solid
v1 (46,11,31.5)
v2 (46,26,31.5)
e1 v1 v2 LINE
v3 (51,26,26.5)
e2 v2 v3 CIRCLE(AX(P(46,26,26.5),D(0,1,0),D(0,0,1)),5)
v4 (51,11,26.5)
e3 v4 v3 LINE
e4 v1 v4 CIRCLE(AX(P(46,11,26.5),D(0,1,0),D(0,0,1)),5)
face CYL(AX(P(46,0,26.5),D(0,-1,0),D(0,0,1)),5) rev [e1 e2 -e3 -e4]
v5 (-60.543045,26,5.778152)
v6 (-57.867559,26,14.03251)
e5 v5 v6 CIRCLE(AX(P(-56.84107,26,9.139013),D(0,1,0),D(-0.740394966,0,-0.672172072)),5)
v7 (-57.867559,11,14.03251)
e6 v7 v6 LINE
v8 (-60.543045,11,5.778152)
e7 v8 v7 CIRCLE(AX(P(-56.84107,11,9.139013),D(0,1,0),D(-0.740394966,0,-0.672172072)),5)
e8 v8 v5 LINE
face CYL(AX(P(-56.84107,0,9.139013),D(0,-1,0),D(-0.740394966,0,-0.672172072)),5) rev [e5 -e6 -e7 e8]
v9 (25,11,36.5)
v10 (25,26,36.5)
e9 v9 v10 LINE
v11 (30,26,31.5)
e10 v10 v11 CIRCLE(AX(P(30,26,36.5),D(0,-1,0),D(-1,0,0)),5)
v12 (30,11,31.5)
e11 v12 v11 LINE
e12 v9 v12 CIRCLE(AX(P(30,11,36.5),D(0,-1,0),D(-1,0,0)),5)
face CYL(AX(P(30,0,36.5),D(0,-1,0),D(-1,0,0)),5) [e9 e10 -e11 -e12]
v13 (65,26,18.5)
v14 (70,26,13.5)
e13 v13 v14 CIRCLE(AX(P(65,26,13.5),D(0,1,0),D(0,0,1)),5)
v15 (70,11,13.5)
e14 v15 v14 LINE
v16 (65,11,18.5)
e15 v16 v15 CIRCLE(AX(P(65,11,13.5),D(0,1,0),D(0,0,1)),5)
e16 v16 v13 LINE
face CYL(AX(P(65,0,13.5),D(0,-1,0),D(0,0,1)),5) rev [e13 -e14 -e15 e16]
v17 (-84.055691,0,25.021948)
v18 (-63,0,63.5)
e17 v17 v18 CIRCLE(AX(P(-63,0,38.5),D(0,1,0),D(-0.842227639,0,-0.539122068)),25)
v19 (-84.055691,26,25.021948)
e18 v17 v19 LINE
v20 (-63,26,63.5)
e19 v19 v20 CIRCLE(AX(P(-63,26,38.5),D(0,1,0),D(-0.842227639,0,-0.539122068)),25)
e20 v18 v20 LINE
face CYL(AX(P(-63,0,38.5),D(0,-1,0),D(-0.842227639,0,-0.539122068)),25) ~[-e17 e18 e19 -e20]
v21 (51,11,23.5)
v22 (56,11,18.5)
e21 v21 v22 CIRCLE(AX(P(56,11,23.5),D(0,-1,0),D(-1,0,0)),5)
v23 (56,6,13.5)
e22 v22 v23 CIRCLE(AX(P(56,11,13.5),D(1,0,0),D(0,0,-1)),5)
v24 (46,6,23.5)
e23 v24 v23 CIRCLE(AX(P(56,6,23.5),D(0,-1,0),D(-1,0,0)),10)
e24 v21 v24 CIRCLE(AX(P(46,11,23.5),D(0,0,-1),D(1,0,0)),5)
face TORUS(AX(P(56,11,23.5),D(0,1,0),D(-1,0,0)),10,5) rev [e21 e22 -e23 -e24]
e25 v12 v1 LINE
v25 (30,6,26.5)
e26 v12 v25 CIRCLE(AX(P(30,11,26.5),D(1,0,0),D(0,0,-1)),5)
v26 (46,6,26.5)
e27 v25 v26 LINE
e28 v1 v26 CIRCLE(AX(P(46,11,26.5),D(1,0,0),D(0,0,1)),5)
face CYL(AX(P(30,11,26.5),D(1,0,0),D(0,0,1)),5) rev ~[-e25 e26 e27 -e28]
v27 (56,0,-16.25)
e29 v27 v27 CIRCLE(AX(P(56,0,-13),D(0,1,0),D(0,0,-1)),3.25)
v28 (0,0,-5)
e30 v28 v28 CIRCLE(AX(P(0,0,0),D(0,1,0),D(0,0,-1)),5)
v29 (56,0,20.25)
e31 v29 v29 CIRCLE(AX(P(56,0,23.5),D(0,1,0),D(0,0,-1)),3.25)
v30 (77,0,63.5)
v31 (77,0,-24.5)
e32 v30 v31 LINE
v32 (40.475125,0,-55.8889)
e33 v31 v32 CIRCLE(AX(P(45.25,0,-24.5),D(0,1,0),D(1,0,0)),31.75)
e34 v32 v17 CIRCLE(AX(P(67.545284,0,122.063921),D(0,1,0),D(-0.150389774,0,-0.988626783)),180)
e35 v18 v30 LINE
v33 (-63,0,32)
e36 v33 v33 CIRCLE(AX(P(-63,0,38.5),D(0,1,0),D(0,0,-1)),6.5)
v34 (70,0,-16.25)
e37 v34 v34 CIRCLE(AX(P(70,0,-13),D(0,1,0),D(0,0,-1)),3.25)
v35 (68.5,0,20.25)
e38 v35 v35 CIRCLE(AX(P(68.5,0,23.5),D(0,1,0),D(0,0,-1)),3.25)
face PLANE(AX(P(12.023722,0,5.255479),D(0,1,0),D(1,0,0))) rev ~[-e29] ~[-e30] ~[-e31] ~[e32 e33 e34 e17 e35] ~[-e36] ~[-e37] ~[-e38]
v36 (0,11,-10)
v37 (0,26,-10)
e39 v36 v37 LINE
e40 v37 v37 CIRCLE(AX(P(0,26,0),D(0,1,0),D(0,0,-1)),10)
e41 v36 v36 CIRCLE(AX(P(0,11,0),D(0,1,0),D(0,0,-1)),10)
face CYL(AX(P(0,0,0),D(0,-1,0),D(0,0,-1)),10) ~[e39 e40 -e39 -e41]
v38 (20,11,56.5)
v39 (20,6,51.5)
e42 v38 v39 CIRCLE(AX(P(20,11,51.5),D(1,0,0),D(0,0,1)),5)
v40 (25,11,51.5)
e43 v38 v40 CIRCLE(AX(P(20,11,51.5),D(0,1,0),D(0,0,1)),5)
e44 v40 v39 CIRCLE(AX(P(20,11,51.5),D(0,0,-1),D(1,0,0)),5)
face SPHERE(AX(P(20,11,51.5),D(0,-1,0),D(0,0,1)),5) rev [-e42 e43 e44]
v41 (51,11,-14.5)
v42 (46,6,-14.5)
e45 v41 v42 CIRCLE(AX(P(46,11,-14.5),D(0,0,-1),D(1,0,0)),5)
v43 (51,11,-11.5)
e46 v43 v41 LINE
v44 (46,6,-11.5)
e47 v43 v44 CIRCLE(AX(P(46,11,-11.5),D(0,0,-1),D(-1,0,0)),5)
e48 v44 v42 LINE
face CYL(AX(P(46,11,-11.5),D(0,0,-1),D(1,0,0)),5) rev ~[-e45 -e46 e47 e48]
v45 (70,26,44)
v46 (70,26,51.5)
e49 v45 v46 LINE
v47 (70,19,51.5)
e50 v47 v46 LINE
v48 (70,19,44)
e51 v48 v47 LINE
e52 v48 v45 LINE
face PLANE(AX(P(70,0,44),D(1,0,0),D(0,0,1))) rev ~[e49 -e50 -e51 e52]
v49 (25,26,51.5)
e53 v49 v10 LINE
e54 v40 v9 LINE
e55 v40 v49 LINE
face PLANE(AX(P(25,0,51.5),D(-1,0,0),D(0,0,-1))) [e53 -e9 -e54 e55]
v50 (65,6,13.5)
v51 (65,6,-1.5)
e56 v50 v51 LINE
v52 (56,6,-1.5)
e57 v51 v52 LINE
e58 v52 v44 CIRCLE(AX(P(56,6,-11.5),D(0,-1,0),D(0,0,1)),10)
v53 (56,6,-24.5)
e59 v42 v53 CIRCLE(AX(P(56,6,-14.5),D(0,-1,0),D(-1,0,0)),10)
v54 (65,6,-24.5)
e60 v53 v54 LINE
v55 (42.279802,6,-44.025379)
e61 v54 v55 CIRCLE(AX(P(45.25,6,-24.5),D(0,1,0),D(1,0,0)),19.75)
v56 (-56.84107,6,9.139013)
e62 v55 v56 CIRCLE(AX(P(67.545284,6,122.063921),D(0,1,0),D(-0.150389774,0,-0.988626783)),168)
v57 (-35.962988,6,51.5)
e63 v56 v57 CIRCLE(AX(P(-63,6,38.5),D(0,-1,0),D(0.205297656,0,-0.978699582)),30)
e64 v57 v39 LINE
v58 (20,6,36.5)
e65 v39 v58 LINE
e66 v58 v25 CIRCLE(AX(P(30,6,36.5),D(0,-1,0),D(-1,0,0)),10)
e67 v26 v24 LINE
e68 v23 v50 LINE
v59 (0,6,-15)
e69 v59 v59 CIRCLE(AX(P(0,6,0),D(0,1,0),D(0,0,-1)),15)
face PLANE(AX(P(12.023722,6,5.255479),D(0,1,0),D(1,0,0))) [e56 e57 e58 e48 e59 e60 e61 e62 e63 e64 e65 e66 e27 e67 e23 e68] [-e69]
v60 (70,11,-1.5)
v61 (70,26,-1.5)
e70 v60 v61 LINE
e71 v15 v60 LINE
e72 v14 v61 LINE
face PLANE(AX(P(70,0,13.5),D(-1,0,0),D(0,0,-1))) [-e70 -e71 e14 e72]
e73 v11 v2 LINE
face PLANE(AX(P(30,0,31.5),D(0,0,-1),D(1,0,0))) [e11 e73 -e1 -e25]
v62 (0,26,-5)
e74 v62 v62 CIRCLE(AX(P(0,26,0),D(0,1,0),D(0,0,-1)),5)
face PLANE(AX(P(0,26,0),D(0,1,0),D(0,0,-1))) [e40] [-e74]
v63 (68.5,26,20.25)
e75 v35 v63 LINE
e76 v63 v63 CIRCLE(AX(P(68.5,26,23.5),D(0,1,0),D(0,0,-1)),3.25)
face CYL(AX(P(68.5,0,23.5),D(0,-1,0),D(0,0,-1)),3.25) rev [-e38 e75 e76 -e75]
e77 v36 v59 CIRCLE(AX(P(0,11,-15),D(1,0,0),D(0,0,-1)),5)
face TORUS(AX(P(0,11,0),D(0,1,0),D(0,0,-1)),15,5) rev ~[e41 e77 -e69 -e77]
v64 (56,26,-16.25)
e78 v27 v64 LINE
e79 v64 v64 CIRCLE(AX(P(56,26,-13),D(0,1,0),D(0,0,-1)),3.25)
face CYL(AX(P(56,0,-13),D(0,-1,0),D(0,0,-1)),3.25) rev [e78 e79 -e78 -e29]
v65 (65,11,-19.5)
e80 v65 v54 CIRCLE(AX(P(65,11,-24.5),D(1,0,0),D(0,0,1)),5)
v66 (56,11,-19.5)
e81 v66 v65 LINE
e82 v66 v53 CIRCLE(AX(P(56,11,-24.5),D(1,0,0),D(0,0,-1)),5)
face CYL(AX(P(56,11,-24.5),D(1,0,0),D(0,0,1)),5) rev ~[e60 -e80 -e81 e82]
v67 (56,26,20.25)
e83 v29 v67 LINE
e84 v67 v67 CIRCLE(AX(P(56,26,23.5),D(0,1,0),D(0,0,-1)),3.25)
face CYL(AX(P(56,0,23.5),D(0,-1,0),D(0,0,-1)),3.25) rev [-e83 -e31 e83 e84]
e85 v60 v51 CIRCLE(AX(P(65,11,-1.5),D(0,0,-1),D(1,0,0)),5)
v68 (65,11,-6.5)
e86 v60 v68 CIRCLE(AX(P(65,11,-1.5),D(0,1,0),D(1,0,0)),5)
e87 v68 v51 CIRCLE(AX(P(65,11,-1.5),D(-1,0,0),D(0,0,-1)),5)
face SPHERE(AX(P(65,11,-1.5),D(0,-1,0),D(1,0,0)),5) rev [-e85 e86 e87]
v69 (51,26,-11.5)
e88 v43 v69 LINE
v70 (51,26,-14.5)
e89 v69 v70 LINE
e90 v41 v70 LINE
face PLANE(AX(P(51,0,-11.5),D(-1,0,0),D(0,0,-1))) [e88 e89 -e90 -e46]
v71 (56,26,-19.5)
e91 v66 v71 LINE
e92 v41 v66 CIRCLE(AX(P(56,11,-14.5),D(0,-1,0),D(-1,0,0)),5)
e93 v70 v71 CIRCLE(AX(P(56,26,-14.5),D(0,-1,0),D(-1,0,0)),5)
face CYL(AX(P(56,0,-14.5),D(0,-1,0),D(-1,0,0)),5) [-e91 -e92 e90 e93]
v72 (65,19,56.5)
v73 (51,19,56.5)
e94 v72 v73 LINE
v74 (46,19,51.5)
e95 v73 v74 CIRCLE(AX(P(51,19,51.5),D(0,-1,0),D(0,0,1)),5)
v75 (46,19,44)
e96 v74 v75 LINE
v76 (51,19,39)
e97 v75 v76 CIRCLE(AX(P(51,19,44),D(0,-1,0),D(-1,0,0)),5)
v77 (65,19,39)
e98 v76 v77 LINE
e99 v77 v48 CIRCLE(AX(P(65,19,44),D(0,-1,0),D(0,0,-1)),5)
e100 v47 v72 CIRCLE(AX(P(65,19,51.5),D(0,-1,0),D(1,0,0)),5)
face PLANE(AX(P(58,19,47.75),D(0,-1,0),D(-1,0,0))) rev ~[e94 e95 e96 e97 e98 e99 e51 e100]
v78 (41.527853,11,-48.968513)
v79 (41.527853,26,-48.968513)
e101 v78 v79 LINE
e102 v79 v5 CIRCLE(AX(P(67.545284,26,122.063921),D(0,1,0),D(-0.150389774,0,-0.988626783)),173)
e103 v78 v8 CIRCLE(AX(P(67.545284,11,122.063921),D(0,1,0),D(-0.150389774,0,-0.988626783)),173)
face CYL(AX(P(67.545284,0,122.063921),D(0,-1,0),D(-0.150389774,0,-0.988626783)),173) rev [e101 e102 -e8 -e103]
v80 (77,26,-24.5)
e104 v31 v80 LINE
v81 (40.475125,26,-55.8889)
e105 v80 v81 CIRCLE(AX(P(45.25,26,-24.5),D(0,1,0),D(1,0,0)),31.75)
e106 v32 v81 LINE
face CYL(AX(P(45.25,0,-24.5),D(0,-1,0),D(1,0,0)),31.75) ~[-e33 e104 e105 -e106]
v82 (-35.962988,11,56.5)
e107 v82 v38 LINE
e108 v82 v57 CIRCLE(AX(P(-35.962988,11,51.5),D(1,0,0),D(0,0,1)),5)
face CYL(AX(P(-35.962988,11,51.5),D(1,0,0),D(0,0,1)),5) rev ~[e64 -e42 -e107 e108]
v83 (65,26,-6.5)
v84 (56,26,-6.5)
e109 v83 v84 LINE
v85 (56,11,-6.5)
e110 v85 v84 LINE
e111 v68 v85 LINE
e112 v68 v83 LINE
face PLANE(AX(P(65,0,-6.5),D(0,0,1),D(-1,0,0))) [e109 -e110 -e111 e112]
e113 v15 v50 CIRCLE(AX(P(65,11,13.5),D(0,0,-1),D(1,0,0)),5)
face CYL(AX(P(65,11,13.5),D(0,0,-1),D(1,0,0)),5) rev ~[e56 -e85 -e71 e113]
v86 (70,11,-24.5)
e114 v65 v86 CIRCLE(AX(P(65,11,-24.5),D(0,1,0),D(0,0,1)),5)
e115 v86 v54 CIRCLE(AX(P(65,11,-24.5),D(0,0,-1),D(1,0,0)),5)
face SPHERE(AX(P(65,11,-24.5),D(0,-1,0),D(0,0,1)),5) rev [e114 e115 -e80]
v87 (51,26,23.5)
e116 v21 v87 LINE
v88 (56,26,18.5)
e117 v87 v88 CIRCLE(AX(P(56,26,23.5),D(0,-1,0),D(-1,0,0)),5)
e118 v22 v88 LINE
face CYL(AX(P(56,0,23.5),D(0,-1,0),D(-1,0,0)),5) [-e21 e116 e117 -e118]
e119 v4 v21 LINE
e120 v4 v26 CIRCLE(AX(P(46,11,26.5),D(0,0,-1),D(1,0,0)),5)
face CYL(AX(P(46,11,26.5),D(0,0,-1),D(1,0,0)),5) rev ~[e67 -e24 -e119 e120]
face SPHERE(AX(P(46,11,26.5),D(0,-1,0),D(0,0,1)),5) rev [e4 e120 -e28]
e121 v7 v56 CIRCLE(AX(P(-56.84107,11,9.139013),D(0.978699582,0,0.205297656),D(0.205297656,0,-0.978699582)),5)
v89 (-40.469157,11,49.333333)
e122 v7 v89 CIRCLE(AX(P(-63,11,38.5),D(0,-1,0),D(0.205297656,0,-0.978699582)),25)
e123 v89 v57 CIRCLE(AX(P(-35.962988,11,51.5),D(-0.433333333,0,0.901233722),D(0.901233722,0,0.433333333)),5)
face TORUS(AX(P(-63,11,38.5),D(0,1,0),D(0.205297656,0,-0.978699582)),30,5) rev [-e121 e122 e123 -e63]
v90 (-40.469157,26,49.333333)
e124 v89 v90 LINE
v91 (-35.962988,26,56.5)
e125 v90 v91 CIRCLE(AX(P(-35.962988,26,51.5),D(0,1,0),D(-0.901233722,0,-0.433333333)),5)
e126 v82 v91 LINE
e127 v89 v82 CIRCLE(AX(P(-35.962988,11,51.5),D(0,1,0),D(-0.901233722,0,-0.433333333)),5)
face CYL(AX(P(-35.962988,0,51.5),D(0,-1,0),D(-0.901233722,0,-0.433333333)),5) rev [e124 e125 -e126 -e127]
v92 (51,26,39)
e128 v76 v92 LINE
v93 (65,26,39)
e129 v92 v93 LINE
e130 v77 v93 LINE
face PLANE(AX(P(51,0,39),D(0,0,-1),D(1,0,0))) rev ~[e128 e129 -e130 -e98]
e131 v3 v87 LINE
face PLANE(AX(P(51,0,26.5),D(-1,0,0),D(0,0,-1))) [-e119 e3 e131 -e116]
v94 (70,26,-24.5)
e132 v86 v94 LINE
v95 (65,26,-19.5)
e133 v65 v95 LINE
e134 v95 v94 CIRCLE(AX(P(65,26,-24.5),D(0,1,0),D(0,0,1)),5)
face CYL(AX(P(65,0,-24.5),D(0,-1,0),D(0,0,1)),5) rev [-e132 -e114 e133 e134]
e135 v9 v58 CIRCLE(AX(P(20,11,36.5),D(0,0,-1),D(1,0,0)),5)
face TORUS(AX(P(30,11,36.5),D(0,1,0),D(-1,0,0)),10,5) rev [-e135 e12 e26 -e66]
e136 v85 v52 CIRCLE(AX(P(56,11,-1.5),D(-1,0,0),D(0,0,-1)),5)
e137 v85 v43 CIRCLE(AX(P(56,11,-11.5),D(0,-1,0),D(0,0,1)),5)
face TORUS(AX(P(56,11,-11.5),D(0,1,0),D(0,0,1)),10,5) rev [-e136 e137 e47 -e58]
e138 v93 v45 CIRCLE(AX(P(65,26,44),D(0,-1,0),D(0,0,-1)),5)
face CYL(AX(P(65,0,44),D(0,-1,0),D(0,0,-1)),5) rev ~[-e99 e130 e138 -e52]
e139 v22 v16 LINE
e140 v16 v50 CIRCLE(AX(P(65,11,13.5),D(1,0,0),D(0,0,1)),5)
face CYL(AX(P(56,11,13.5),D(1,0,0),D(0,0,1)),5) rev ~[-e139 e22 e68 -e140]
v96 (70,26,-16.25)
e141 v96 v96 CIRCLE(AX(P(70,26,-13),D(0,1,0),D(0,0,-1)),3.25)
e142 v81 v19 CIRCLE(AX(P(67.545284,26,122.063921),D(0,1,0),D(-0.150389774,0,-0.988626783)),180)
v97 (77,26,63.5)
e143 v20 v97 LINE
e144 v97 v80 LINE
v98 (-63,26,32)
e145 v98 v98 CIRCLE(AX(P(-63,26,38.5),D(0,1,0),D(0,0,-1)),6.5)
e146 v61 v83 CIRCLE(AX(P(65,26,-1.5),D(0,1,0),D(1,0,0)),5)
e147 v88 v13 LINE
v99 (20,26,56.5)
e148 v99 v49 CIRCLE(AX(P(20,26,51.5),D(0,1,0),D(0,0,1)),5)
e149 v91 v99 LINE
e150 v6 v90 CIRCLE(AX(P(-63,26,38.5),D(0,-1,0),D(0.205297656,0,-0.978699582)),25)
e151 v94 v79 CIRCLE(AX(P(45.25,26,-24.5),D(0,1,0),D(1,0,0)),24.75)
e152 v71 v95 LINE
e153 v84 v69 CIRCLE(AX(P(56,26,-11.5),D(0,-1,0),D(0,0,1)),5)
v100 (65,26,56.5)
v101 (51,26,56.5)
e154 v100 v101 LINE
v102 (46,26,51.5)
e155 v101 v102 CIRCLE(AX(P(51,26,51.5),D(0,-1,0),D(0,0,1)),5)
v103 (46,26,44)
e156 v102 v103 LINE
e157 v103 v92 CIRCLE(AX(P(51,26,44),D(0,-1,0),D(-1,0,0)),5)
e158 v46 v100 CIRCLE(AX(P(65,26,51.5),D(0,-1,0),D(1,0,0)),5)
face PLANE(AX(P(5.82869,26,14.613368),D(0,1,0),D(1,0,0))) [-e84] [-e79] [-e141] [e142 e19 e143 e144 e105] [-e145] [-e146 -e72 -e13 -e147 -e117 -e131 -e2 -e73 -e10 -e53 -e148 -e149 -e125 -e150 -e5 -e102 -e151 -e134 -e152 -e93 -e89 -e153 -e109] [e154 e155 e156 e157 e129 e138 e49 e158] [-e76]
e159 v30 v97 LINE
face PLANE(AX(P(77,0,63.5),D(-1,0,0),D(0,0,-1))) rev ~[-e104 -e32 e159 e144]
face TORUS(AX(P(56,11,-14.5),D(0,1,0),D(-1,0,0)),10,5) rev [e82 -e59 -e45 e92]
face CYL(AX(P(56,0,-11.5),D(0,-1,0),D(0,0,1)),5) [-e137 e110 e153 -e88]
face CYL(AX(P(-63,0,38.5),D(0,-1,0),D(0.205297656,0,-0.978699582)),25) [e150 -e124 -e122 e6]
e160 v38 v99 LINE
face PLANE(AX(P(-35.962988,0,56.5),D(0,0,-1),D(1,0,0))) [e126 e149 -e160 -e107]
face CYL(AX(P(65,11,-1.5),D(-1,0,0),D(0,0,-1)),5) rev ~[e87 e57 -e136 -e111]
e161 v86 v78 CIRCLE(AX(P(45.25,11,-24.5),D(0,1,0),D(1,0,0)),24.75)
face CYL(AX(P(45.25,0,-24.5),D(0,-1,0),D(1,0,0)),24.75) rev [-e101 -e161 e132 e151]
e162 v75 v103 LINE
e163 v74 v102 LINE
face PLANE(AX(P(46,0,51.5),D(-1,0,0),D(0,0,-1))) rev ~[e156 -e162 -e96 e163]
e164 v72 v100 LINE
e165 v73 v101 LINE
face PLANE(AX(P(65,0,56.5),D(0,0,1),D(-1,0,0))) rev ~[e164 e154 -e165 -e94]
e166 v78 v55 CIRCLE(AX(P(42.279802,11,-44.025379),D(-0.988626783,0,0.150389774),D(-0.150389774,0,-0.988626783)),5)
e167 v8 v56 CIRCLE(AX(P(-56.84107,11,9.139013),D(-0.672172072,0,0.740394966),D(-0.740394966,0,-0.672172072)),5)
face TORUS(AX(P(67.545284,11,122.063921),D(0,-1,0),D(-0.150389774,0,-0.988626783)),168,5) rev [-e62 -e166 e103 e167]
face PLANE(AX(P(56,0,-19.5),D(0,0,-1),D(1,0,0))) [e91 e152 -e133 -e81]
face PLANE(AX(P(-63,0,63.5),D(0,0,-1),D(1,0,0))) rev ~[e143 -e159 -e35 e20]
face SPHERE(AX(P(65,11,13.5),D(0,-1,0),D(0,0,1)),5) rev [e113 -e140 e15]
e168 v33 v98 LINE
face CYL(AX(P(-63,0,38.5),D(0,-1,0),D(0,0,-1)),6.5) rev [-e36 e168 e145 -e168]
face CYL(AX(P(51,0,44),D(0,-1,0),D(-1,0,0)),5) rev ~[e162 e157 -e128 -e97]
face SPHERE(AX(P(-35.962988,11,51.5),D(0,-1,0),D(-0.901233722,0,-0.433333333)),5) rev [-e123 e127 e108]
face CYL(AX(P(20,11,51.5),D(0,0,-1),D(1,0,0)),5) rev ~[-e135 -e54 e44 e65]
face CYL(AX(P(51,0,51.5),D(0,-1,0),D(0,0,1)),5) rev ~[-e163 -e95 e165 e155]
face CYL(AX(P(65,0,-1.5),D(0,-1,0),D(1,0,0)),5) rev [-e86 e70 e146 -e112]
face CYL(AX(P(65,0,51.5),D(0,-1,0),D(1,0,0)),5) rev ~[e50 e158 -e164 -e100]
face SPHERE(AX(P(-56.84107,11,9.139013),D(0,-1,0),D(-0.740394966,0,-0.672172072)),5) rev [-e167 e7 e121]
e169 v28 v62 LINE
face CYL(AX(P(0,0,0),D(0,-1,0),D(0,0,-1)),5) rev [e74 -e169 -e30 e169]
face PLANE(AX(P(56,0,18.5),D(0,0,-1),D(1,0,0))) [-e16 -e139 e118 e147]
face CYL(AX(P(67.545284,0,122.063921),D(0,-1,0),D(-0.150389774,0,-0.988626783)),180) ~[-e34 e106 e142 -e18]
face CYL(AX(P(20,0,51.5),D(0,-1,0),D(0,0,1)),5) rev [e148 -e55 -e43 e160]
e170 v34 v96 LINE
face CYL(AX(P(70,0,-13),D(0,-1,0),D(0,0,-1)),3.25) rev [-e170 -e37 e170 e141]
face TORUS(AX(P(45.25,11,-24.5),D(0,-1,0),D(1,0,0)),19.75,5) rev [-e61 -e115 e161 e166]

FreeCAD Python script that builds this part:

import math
import FreeCAD as App
import Part
import Sketcher

V = App.Vector


def edges_at(feature, points):
    """Names of the edges that pass closest to the given points."""
    edges = feature.Shape.Edges
    near = lambda p: min(range(len(edges)), key=lambda i: edges[i].distToShape(Part.Vertex(*p))[0])
    return sorted({f"Edge{near(p) + 1}" for p in points})

doc = App.newDocument("Part")
body = doc.addObject("PartDesign::Body", "Body")

# Sketch on XZ plane
sketch1 = body.newObject("Sketcher::SketchObject", "Sketch")
sketch1.AttachmentSupport = (doc.getObject("XZ_Plane"), [""])
sketch1.MapMode = "FlatFace"
sketch1.addGeometry(Part.ArcOfCircle(Part.Circle(V(45.3, -24.5, 0), V(0, 0, 1), 31.7), math.radians(-99), math.radians(0)), False)
sketch1.addGeometry(Part.ArcOfCircle(Part.Circle(V(67.5, 122.1, 0), V(0, 0, 1), 180), math.radians(-147), math.radians(-99)), False)
sketch1.addGeometry(Part.ArcOfCircle(Part.Circle(V(-63, 38.5, 0), V(0, 0, 1), 25), math.radians(90), math.radians(213)), False)
sketch1.addGeometry(Part.LineSegment(V(-63, 63.5, 0), V(77, 63.5, 0)), False)
sketch1.addGeometry(Part.LineSegment(V(77, 63.5, 0), V(77, -24.5, 0)), False)
sketch1.addGeometry(Part.Circle(V(-63, 38.5, 0), V(0, 0, 1), 6.5), False)
sketch1.addGeometry(Part.ArcOfCircle(Part.Circle(V(51, 51.5, 0), V(0, 0, 1), 5), math.radians(90), math.radians(180)), False)
sketch1.addGeometry(Part.LineSegment(V(46, 51.5, 0), V(46, 44, 0)), False)
sketch1.addGeometry(Part.ArcOfCircle(Part.Circle(V(51, 44, 0), V(0, 0, 1), 5), math.radians(180), math.radians(270)), False)
sketch1.addGeometry(Part.LineSegment(V(51, 39, 0), V(65, 39, 0)), False)
sketch1.addGeometry(Part.ArcOfCircle(Part.Circle(V(65, 44, 0), V(0, 0, 1), 5), math.radians(-90), math.radians(0)), False)
sketch1.addGeometry(Part.LineSegment(V(70, 44, 0), V(70, 51.5, 0)), False)
sketch1.addGeometry(Part.ArcOfCircle(Part.Circle(V(65, 51.5, 0), V(0, 0, 1), 5), math.radians(0), math.radians(90)), False)
sketch1.addGeometry(Part.LineSegment(V(65, 56.5, 0), V(51, 56.5, 0)), False)
sketch1.addGeometry(Part.ArcOfCircle(Part.Circle(V(-56.8, 9.1, 0), V(0, 0, 1), 5), math.radians(102), math.radians(222)), False)
sketch1.addGeometry(Part.ArcOfCircle(Part.Circle(V(67.5, 122.1, 0), V(0, 0, 1), 173), math.radians(-138), math.radians(-99)), False)
sketch1.addGeometry(Part.ArcOfCircle(Part.Circle(V(45.2, -24.5, 0), V(0, 0, 1), 24.8), math.radians(-99), math.radians(0)), False)
sketch1.addGeometry(Part.ArcOfCircle(Part.Circle(V(65, -24.5, 0), V(0, 0, 1), 5), math.radians(0), math.radians(90)), False)
sketch1.addGeometry(Part.LineSegment(V(65, -19.5, 0), V(56, -19.5, 0)), False)
sketch1.addGeometry(Part.ArcOfCircle(Part.Circle(V(56, -14.5, 0), V(0, 0, 1), 5), math.radians(180), math.radians(270)), False)
sketch1.addGeometry(Part.LineSegment(V(51, -14.5, 0), V(51, -11.5, 0)), False)
sketch1.addGeometry(Part.ArcOfCircle(Part.Circle(V(56, -11.5, 0), V(0, 0, 1), 5), math.radians(90), math.radians(180)), False)
sketch1.addGeometry(Part.LineSegment(V(56, -6.5, 0), V(65, -6.5, 0)), False)
sketch1.addGeometry(Part.ArcOfCircle(Part.Circle(V(65, -1.5, 0), V(0, 0, 1), 5), math.radians(-90), math.radians(0)), False)
sketch1.addGeometry(Part.LineSegment(V(70, -1.5, 0), V(70, 13.5, 0)), False)
sketch1.addGeometry(Part.ArcOfCircle(Part.Circle(V(65, 13.5, 0), V(0, 0, 1), 5), math.radians(0), math.radians(90)), False)
sketch1.addGeometry(Part.LineSegment(V(65, 18.5, 0), V(56, 18.5, 0)), False)
sketch1.addGeometry(Part.ArcOfCircle(Part.Circle(V(56, 23.5, 0), V(0, 0, 1), 5), math.radians(180), math.radians(270)), False)
sketch1.addGeometry(Part.LineSegment(V(51, 23.5, 0), V(51, 26.5, 0)), False)
sketch1.addGeometry(Part.ArcOfCircle(Part.Circle(V(46, 26.5, 0), V(0, 0, 1), 5), math.radians(0), math.radians(90)), False)
sketch1.addGeometry(Part.LineSegment(V(46, 31.5, 0), V(30, 31.5, 0)), False)
sketch1.addGeometry(Part.ArcOfCircle(Part.Circle(V(30, 36.5, 0), V(0, 0, 1), 5), math.radians(180), math.radians(270)), False)
sketch1.addGeometry(Part.LineSegment(V(25, 36.5, 0), V(25, 51.5, 0)), False)
sketch1.addGeometry(Part.ArcOfCircle(Part.Circle(V(20, 51.5, 0), V(0, 0, 1), 5), math.radians(0), math.radians(90)), False)
sketch1.addGeometry(Part.LineSegment(V(20, 56.5, 0), V(-36, 56.5, 0)), False)
sketch1.addGeometry(Part.ArcOfCircle(Part.Circle(V(-36, 51.5, 0), V(0, 0, 1), 5), math.radians(90), math.radians(206)), False)
sketch1.addGeometry(Part.ArcOfCircle(Part.Circle(V(-63, 38.5, 0), V(0, 0, 1), 25), math.radians(-78), math.radians(26)), False)
sketch1.addGeometry(Part.Circle(V(56, 23.5, 0), V(0, 0, 1), 3.2), False)
sketch1.addGeometry(Part.Circle(V(68.5, 23.5, 0), V(0, 0, 1), 3.2), False)
sketch1.addGeometry(Part.Circle(V(56, -13, 0), V(0, 0, 1), 3.2), False)
sketch1.addGeometry(Part.Circle(V(70, -13, 0), V(0, 0, 1), 3.2), False)
sketch1.addConstraint(Sketcher.Constraint("Tangent", 0, 1, 1, 2))
sketch1.addConstraint(Sketcher.Constraint("Tangent", 1, 1, 2, 2))
sketch1.addConstraint(Sketcher.Constraint("Tangent", 2, 1, 3, 1))
sketch1.addConstraint(Sketcher.Constraint("Coincident", 3, 2, 4, 1))
sketch1.addConstraint(Sketcher.Constraint("Tangent", 4, 2, 0, 2))
sketch1.addConstraint(Sketcher.Constraint("Tangent", 6, 2, 7, 1))
sketch1.addConstraint(Sketcher.Constraint("Tangent", 7, 2, 8, 1))
sketch1.addConstraint(Sketcher.Constraint("Tangent", 8, 2, 9, 1))
sketch1.addConstraint(Sketcher.Constraint("Tangent", 9, 2, 10, 1))
sketch1.addConstraint(Sketcher.Constraint("Tangent", 10, 2, 11, 1))
sketch1.addConstraint(Sketcher.Constraint("Tangent", 11, 2, 12, 1))
sketch1.addConstraint(Sketcher.Constraint("Tangent", 12, 2, 13, 1))
sketch1.addConstraint(Sketcher.Constraint("Tangent", 13, 2, 6, 1))
sketch1.addConstraint(Sketcher.Constraint("Tangent", 14, 2, 15, 1))
sketch1.addConstraint(Sketcher.Constraint("Tangent", 15, 2, 16, 1))
sketch1.addConstraint(Sketcher.Constraint("Tangent", 16, 2, 17, 1))
sketch1.addConstraint(Sketcher.Constraint("Tangent", 17, 2, 18, 1))
sketch1.addConstraint(Sketcher.Constraint("Tangent", 18, 2, 19, 2))
sketch1.addConstraint(Sketcher.Constraint("Tangent", 19, 1, 20, 1))
sketch1.addConstraint(Sketcher.Constraint("Tangent", 20, 2, 21, 2))
sketch1.addConstraint(Sketcher.Constraint("Tangent", 21, 1, 22, 1))
sketch1.addConstraint(Sketcher.Constraint("Tangent", 22, 2, 23, 1))
sketch1.addConstraint(Sketcher.Constraint("Tangent", 23, 2, 24, 1))
sketch1.addConstraint(Sketcher.Constraint("Tangent", 24, 2, 25, 1))
sketch1.addConstraint(Sketcher.Constraint("Tangent", 25, 2, 26, 1))
sketch1.addConstraint(Sketcher.Constraint("Tangent", 26, 2, 27, 2))
sketch1.addConstraint(Sketcher.Constraint("Tangent", 27, 1, 28, 1))
sketch1.addConstraint(Sketcher.Constraint("Tangent", 28, 2, 29, 1))
sketch1.addConstraint(Sketcher.Constraint("Tangent", 29, 2, 30, 1))
sketch1.addConstraint(Sketcher.Constraint("Tangent", 30, 2, 31, 2))
sketch1.addConstraint(Sketcher.Constraint("Tangent", 31, 1, 32, 1))
sketch1.addConstraint(Sketcher.Constraint("Tangent", 32, 2, 33, 1))
sketch1.addConstraint(Sketcher.Constraint("Tangent", 33, 2, 34, 1))
sketch1.addConstraint(Sketcher.Constraint("Tangent", 34, 2, 35, 1))
sketch1.addConstraint(Sketcher.Constraint("Tangent", 35, 2, 36, 2))
sketch1.addConstraint(Sketcher.Constraint("Tangent", 36, 1, 14, 1))
sketch1.addConstraint(Sketcher.Constraint("Horizontal", 3))
sketch1.addConstraint(Sketcher.Constraint("Vertical", 4))
sketch1.addConstraint(Sketcher.Constraint("Vertical", 7))
sketch1.addConstraint(Sketcher.Constraint("Horizontal", 9))
sketch1.addConstraint(Sketcher.Constraint("Vertical", 11))
sketch1.addConstraint(Sketcher.Constraint("Horizontal", 13))
sketch1.addConstraint(Sketcher.Constraint("Horizontal", 18))
sketch1.addConstraint(Sketcher.Constraint("Vertical", 20))
sketch1.addConstraint(Sketcher.Constraint("Horizontal", 22))
sketch1.addConstraint(Sketcher.Constraint("Vertical", 24))
sketch1.addConstraint(Sketcher.Constraint("Horizontal", 26))
sketch1.addConstraint(Sketcher.Constraint("Vertical", 28))
sketch1.addConstraint(Sketcher.Constraint("Horizontal", 30))
sketch1.addConstraint(Sketcher.Constraint("Vertical", 32))
sketch1.addConstraint(Sketcher.Constraint("Horizontal", 34))
sketch1.addConstraint(Sketcher.Constraint("Coincident", 5, 3, 2, 3))
sketch1.addConstraint(Sketcher.Constraint("Coincident", 15, 3, 1, 3))
sketch1.addConstraint(Sketcher.Constraint("Coincident", 16, 3, 0, 3))
sketch1.addConstraint(Sketcher.Constraint("Coincident", 36, 3, 2, 3))
sketch1.addConstraint(Sketcher.Constraint("Coincident", 37, 3, 27, 3))
sketch1.addConstraint(Sketcher.Constraint("Equal", 6, 8))
sketch1.addConstraint(Sketcher.Constraint("Equal", 8, 10))
sketch1.addConstraint(Sketcher.Constraint("Equal", 10, 12))
sketch1.addConstraint(Sketcher.Constraint("Equal", 12, 14))
sketch1.addConstraint(Sketcher.Constraint("Equal", 14, 17))
sketch1.addConstraint(Sketcher.Constraint("Equal", 17, 19))
sketch1.addConstraint(Sketcher.Constraint("Equal", 19, 21))
sketch1.addConstraint(Sketcher.Constraint("Equal", 21, 23))
sketch1.addConstraint(Sketcher.Constraint("Equal", 23, 25))
sketch1.addConstraint(Sketcher.Constraint("Equal", 25, 27))
sketch1.addConstraint(Sketcher.Constraint("Equal", 27, 29))
sketch1.addConstraint(Sketcher.Constraint("Equal", 29, 31))
sketch1.addConstraint(Sketcher.Constraint("Equal", 31, 33))
sketch1.addConstraint(Sketcher.Constraint("Equal", 33, 35))
sketch1.addConstraint(Sketcher.Constraint("Equal", 2, 36))
sketch1.addConstraint(Sketcher.Constraint("Equal", 37, 38))
sketch1.addConstraint(Sketcher.Constraint("Equal", 38, 39))
sketch1.addConstraint(Sketcher.Constraint("Equal", 39, 40))
sketch1.addConstraint(Sketcher.Constraint("Horizontal", 16, 3, 17, 3))
sketch1.addConstraint(Sketcher.Constraint("Horizontal", 12, 3, 33, 3))
sketch1.addConstraint(Sketcher.Constraint("Horizontal", 37, 3, 38, 3))
sketch1.addConstraint(Sketcher.Constraint("Horizontal", 39, 3, 40, 3))
sketch1.addConstraint(Sketcher.Constraint("Vertical", 12, 3, 17, 3))
sketch1.addConstraint(Sketcher.Constraint("Vertical", 17, 3, 23, 3))
sketch1.addConstraint(Sketcher.Constraint("Vertical", 21, 3, 27, 3))
sketch1.addConstraint(Sketcher.Constraint("Vertical", 37, 3, 39, 3))
sketch1.addConstraint(Sketcher.Constraint("Vertical", 29, 3, 6, 2))
sketch1.addConstraint(Sketcher.Constraint("Vertical", 40, 3, 10, 2))
sketch1.addConstraint(Sketcher.Constraint("Equal", 20, 28))
sketch1.addConstraint(Sketcher.Constraint("Equal", 24, 32))
sketch1.addConstraint(Sketcher.Constraint("Diameter", 5, 13.0))
sketch1.addConstraint(Sketcher.Constraint("Radius", 1, 180.0))
sketch1.addConstraint(Sketcher.Constraint("Radius", 2, 25.0))
sketch1.addConstraint(Sketcher.Constraint("Radius", 6, 5.0))
sketch1.addConstraint(Sketcher.Constraint("Radius", 15, 173.0))
sketch1.addConstraint(Sketcher.Constraint("Diameter", 37, 6.5))
sketch1.addConstraint(Sketcher.Constraint("DistanceX", 3, 1, 3, 2, 140.0))
sketch1.addConstraint(Sketcher.Constraint("DistanceX", 9, 1, 9, 2, 14.0))
sketch1.addConstraint(Sketcher.Constraint("DistanceX", 30, 2, 30, 1, 16.0))
sketch1.addConstraint(Sketcher.Constraint("DistanceY", 4, 2, 4, 1, 88.0))
sketch1.addConstraint(Sketcher.Constraint("DistanceY", 20, 1, 20, 2, 3.0))
sketch1.addConstraint(Sketcher.Constraint("DistanceY", 24, 1, 24, 2, 15.0))
sketch1.addConstraint(Sketcher.Constraint("Radius", 0, 31.75))
sketch1.addConstraint(Sketcher.Constraint("DistanceY", 7, 2, 7, 1, 7.5))
sketch1.addConstraint(Sketcher.Constraint("DistanceX", 2, 3, -1, 1, 63.0))
sketch1.addConstraint(Sketcher.Constraint("DistanceY", -1, 1, 8, 3, 44.0))
sketch1.addConstraint(Sketcher.Constraint("DistanceY", 39, 3, -1, 1, 13.0))
sketch1.addConstraint(Sketcher.Constraint("DistanceX", -1, 1, 38, 3, 68.5))
pad1 = body.newObject("PartDesign::Pad", "Pad")
pad1.Profile = sketch1
pad1.Length = 26
pad1.Reversed = True

# Sketch on XZ plane
sketch2 = body.newObject("Sketcher::SketchObject", "Sketch001")
sketch2.AttachmentSupport = (doc.getObject("XZ_Plane"), [""])
sketch2.MapMode = "FlatFace"
sketch2.addGeometry(Part.ArcOfCircle(Part.Circle(V(51, 44, 0), V(0, 0, 1), 5), math.radians(180), math.radians(270)), False)
sketch2.addGeometry(Part.LineSegment(V(46, 44, 0), V(46, 52, 0)), False)
sketch2.addGeometry(Part.ArcOfCircle(Part.Circle(V(51, 52, 0), V(0, 0, 1), 5), math.radians(90), math.radians(180)), False)
sketch2.addGeometry(Part.LineSegment(V(51, 56, 0), V(65, 56, 0)), False)
sketch2.addGeometry(Part.ArcOfCircle(Part.Circle(V(65, 52, 0), V(0, 0, 1), 5), math.radians(0), math.radians(90)), False)
sketch2.addGeometry(Part.LineSegment(V(70, 52, 0), V(70, 44, 0)), False)
sketch2.addGeometry(Part.ArcOfCircle(Part.Circle(V(65, 44, 0), V(0, 0, 1), 5), math.radians(-90), math.radians(0)), False)
sketch2.addGeometry(Part.LineSegment(V(65, 39, 0), V(51, 39, 0)), False)
sketch2.addConstraint(Sketcher.Constraint("Tangent", 0, 1, 1, 1))
sketch2.addConstraint(Sketcher.Constraint("Tangent", 1, 2, 2, 2))
sketch2.addConstraint(Sketcher.Constraint("Tangent", 2, 1, 3, 1))
sketch2.addConstraint(Sketcher.Constraint("Tangent", 3, 2, 4, 2))
sketch2.addConstraint(Sketcher.Constraint("Tangent", 4, 1, 5, 1))
sketch2.addConstraint(Sketcher.Constraint("Tangent", 5, 2, 6, 2))
sketch2.addConstraint(Sketcher.Constraint("Tangent", 6, 1, 7, 1))
sketch2.addConstraint(Sketcher.Constraint("Tangent", 7, 2, 0, 2))
sketch2.addConstraint(Sketcher.Constraint("Vertical", 1))
sketch2.addConstraint(Sketcher.Constraint("Horizontal", 3))
sketch2.addConstraint(Sketcher.Constraint("Vertical", 5))
sketch2.addConstraint(Sketcher.Constraint("Horizontal", 7))
sketch2.addConstraint(Sketcher.Constraint("Equal", 0, 2))
sketch2.addConstraint(Sketcher.Constraint("Equal", 2, 4))
sketch2.addConstraint(Sketcher.Constraint("Equal", 4, 6))
sketch2.addConstraint(Sketcher.Constraint("Radius", 0, 5.0))
sketch2.addConstraint(Sketcher.Constraint("DistanceX", 3, 1, 3, 2, 14.0))
sketch2.addConstraint(Sketcher.Constraint("DistanceY", 1, 1, 1, 2, 7.5))
sketch2.addConstraint(Sketcher.Constraint("DistanceX", -1, 1, 0, 3, 51.0))
sketch2.addConstraint(Sketcher.Constraint("DistanceY", -1, 1, 0, 3, 44.0))
pad2 = body.newObject("PartDesign::Pad", "Pad001")
pad2.Profile = sketch2
pad2.Length = 19
pad2.Reversed = True
body2 = doc.addObject("PartDesign::Body", "Body001")

# Sketch on XZ plane
sketch3 = body2.newObject("Sketcher::SketchObject", "Sketch002")
sketch3.AttachmentSupport = (doc.getObject("XZ_Plane001"), [""])
sketch3.MapMode = "FlatFace"
sketch3.addGeometry(Part.Circle(V(0, 0, 0), V(0, 0, 1), 10), False)
sketch3.addGeometry(Part.Circle(V(0, 0, 0), V(0, 0, 1), 5), False)
sketch3.addConstraint(Sketcher.Constraint("Coincident", 0, 3, -1, 1))
sketch3.addConstraint(Sketcher.Constraint("Coincident", 1, 3, -1, 1))
sketch3.addConstraint(Sketcher.Constraint("Diameter", 0, 20.0))
sketch3.addConstraint(Sketcher.Constraint("Diameter", 1, 10.0))
pad3 = body2.newObject("PartDesign::Pad", "Pad002")
pad3.Profile = sketch3
pad3.Length = 26
pad3.Reversed = True
body.AllowCompound = True
doc.recompute()

boolean = body.newObject("PartDesign::Boolean", "Boolean")
boolean.Type = "Fuse"
boolean.addObjects([body2])

# Sketch on XZ plane
sketch4 = body.newObject("Sketcher::SketchObject", "Sketch003")
sketch4.AttachmentSupport = (doc.getObject("XZ_Plane"), [""])
sketch4.MapMode = "FlatFace"
sketch4.addGeometry(Part.ArcOfCircle(Part.Circle(V(67.5, 122.1, 0), V(0, 0, 1), 173), math.radians(-138), math.radians(-99)), False)
sketch4.addGeometry(Part.ArcOfCircle(Part.Circle(V(-56.8, 9.1, 0), V(0, 0, 1), 5), math.radians(102), math.radians(222)), False)
sketch4.addGeometry(Part.ArcOfCircle(Part.Circle(V(-63, 38.5, 0), V(0, 0, 1), 25), math.radians(-78), math.radians(26)), False)
sketch4.addGeometry(Part.ArcOfCircle(Part.Circle(V(-36, 51.5, 0), V(0, 0, 1), 5), math.radians(90), math.radians(206)), False)
sketch4.addGeometry(Part.LineSegment(V(-36, 56.5, 0), V(20, 56.5, 0)), False)
sketch4.addGeometry(Part.ArcOfCircle(Part.Circle(V(20, 51.5, 0), V(0, 0, 1), 5), math.radians(0), math.radians(90)), False)
sketch4.addGeometry(Part.LineSegment(V(25, 51.5, 0), V(25, 36.5, 0)), False)
sketch4.addGeometry(Part.ArcOfCircle(Part.Circle(V(30, 36.5, 0), V(0, 0, 1), 5), math.radians(180), math.radians(270)), False)
sketch4.addGeometry(Part.LineSegment(V(30, 31.5, 0), V(46, 31.5, 0)), False)
sketch4.addGeometry(Part.ArcOfCircle(Part.Circle(V(46, 26.5, 0), V(0, 0, 1), 5), math.radians(0), math.radians(90)), False)
sketch4.addGeometry(Part.LineSegment(V(51, 26.5, 0), V(51, 23.5, 0)), False)
sketch4.addGeometry(Part.ArcOfCircle(Part.Circle(V(56, 23.5, 0), V(0, 0, 1), 5), math.radians(180), math.radians(270)), False)
sketch4.addGeometry(Part.LineSegment(V(56, 18.5, 0), V(65, 18.5, 0)), False)
sketch4.addGeometry(Part.ArcOfCircle(Part.Circle(V(65, 13.5, 0), V(0, 0, 1), 5), math.radians(0), math.radians(90)), False)
sketch4.addGeometry(Part.LineSegment(V(70, 13.5, 0), V(70, -1.5, 0)), False)
sketch4.addGeometry(Part.ArcOfCircle(Part.Circle(V(65, -1.5, 0), V(0, 0, 1), 5), math.radians(-90), math.radians(0)), False)
sketch4.addGeometry(Part.LineSegment(V(65, -6.5, 0), V(56, -6.5, 0)), False)
sketch4.addGeometry(Part.ArcOfCircle(Part.Circle(V(56, -11.5, 0), V(0, 0, 1), 5), math.radians(90), math.radians(180)), False)
sketch4.addGeometry(Part.LineSegment(V(51, -11.5, 0), V(51, -14.5, 0)), False)
sketch4.addGeometry(Part.ArcOfCircle(Part.Circle(V(56, -14.5, 0), V(0, 0, 1), 5), math.radians(180), math.radians(270)), False)
sketch4.addGeometry(Part.LineSegment(V(56, -19.5, 0), V(65, -19.5, 0)), False)
sketch4.addGeometry(Part.ArcOfCircle(Part.Circle(V(65, -24.5, 0), V(0, 0, 1), 5), math.radians(0), math.radians(90)), False)
sketch4.addGeometry(Part.ArcOfCircle(Part.Circle(V(45.2, -24.5, 0), V(0, 0, 1), 24.8), math.radians(-99), math.radians(0)), False)
sketch4.addGeometry(Part.Circle(V(0, 0, 0), V(0, 0, 1), 10), False)
sketch4.addConstraint(Sketcher.Constraint("Tangent", 0, 1, 1, 2))
sketch4.addConstraint(Sketcher.Constraint("Tangent", 1, 1, 2, 1))
sketch4.addConstraint(Sketcher.Constraint("Tangent", 2, 2, 3, 2))
sketch4.addConstraint(Sketcher.Constraint("Tangent", 3, 1, 4, 1))
sketch4.addConstraint(Sketcher.Constraint("Tangent", 4, 2, 5, 2))
sketch4.addConstraint(Sketcher.Constraint("Tangent", 5, 1, 6, 1))
sketch4.addConstraint(Sketcher.Constraint("Tangent", 6, 2, 7, 1))
sketch4.addConstraint(Sketcher.Constraint("Tangent", 7, 2, 8, 1))
sketch4.addConstraint(Sketcher.Constraint("Tangent", 8, 2, 9, 2))
sketch4.addConstraint(Sketcher.Constraint("Tangent", 9, 1, 10, 1))
sketch4.addConstraint(Sketcher.Constraint("Tangent", 10, 2, 11, 1))
sketch4.addConstraint(Sketcher.Constraint("Tangent", 11, 2, 12, 1))
sketch4.addConstraint(Sketcher.Constraint("Tangent", 12, 2, 13, 2))
sketch4.addConstraint(Sketcher.Constraint("Tangent", 13, 1, 14, 1))
sketch4.addConstraint(Sketcher.Constraint("Tangent", 14, 2, 15, 2))
sketch4.addConstraint(Sketcher.Constraint("Tangent", 15, 1, 16, 1))
sketch4.addConstraint(Sketcher.Constraint("Tangent", 16, 2, 17, 1))
sketch4.addConstraint(Sketcher.Constraint("Tangent", 17, 2, 18, 1))
sketch4.addConstraint(Sketcher.Constraint("Tangent", 18, 2, 19, 1))
sketch4.addConstraint(Sketcher.Constraint("Tangent", 19, 2, 20, 1))
sketch4.addConstraint(Sketcher.Constraint("Tangent", 20, 2, 21, 2))
sketch4.addConstraint(Sketcher.Constraint("Tangent", 21, 1, 22, 2))
sketch4.addConstraint(Sketcher.Constraint("Tangent", 22, 1, 0, 2))
sketch4.addConstraint(Sketcher.Constraint("Horizontal", 4))
sketch4.addConstraint(Sketcher.Constraint("Vertical", 6))
sketch4.addConstraint(Sketcher.Constraint("Horizontal", 8))
sketch4.addConstraint(Sketcher.Constraint("Vertical", 10))
sketch4.addConstraint(Sketcher.Constraint("Horizontal", 12))
sketch4.addConstraint(Sketcher.Constraint("Vertical", 14))
sketch4.addConstraint(Sketcher.Constraint("Horizontal", 16))
sketch4.addConstraint(Sketcher.Constraint("Vertical", 18))
sketch4.addConstraint(Sketcher.Constraint("Horizontal", 20))
sketch4.addConstraint(Sketcher.Constraint("Coincident", 23, 3, -1, 1))
sketch4.addConstraint(Sketcher.Constraint("Equal", 1, 3))
sketch4.addConstraint(Sketcher.Constraint("Equal", 3, 5))
sketch4.addConstraint(Sketcher.Constraint("Equal", 5, 7))
sketch4.addConstraint(Sketcher.Constraint("Equal", 7, 9))
sketch4.addConstraint(Sketcher.Constraint("Equal", 9, 11))
sketch4.addConstraint(Sketcher.Constraint("Equal", 11, 13))
sketch4.addConstraint(Sketcher.Constraint("Equal", 13, 15))
sketch4.addConstraint(Sketcher.Constraint("Equal", 15, 17))
sketch4.addConstraint(Sketcher.Constraint("Equal", 17, 19))
sketch4.addConstraint(Sketcher.Constraint("Equal", 19, 21))
sketch4.addConstraint(Sketcher.Constraint("Horizontal", 21, 3, 22, 3))
sketch4.addConstraint(Sketcher.Constraint("Vertical", 11, 3, 17, 3))
sketch4.addConstraint(Sketcher.Constraint("Vertical", 15, 3, 21, 3))
sketch4.addConstraint(Sketcher.Constraint("Equal", 6, 14))
sketch4.addConstraint(Sketcher.Constraint("Equal", 10, 18))
sketch4.addConstraint(Sketcher.Constraint("Diameter", 23, 20.0))
sketch4.addConstraint(Sketcher.Constraint("Radius", 0, 173.0))
sketch4.addConstraint(Sketcher.Constraint("Radius", 1, 5.0))
sketch4.addConstraint(Sketcher.Constraint("Radius", 2, 25.0))
sketch4.addConstraint(Sketcher.Constraint("DistanceX", 8, 1, 8, 2, 16.0))
sketch4.addConstraint(Sketcher.Constraint("DistanceX", 12, 1, 12, 2, 9.0))
sketch4.addConstraint(Sketcher.Constraint("DistanceY", 6, 2, 6, 1, 15.0))
sketch4.addConstraint(Sketcher.Constraint("DistanceY", 10, 2, 10, 1, 3.0))
sketch4.addConstraint(Sketcher.Constraint("Radius", 22, 24.75))
sketch4.addConstraint(Sketcher.Constraint("DistanceX", 2, 3, -1, 1, 63.0))
sketch4.addConstraint(Sketcher.Constraint("DistanceX", -1, 1, 5, 3, 20.0))
sketch4.addConstraint(Sketcher.Constraint("DistanceY", 2, 3, 3, 3, 13.0))
sketch4.addConstraint(Sketcher.Constraint("DistanceY", -1, 1, 2, 3, 38.5))
sketch4.addConstraint(Sketcher.Constraint("DistanceX", 1, 1, 2, 2, 17.398402))
pad4 = body.newObject("PartDesign::Pad", "Pad003")
pad4.Profile = sketch4
pad4.Length = 6
pad4.Reversed = True
doc.recompute()

fillet = body.newObject("PartDesign::Fillet", "Fillet")
fillet.Base = (pad4, edges_at(pad4, [
    (-40.576, 6, 27.448),
    (-40.196, 6, 54.161),
    (0, 6, 10),
    (-14.225, 6, -30.391),
    (-61.597, 6, 10.681),
    (-7.981, 6, 56.5),
    (23.536, 6, 55.036),
    (25, 6, 44),
    (26.464, 6, 32.964),
    (38, 6, 31.5),
    (49.536, 6, 30.036),
    (51, 6, 25),
    (52.464, 6, 19.964),
    (60.5, 6, 18.5),
    (68.536, 6, 17.036),
    (70, 6, 6),
    (68.536, 6, -5.036),
    (60.5, 6, -6.5),
    (52.464, 6, -7.964),
    (51, 6, -13),
    (52.464, 6, -18.036),
    (60.5, 6, -19.5),
    (68.536, 6, -20.964),
    (61.381, 6, -43.271),
]))
fillet.Radius = 5

doc.recompute()
